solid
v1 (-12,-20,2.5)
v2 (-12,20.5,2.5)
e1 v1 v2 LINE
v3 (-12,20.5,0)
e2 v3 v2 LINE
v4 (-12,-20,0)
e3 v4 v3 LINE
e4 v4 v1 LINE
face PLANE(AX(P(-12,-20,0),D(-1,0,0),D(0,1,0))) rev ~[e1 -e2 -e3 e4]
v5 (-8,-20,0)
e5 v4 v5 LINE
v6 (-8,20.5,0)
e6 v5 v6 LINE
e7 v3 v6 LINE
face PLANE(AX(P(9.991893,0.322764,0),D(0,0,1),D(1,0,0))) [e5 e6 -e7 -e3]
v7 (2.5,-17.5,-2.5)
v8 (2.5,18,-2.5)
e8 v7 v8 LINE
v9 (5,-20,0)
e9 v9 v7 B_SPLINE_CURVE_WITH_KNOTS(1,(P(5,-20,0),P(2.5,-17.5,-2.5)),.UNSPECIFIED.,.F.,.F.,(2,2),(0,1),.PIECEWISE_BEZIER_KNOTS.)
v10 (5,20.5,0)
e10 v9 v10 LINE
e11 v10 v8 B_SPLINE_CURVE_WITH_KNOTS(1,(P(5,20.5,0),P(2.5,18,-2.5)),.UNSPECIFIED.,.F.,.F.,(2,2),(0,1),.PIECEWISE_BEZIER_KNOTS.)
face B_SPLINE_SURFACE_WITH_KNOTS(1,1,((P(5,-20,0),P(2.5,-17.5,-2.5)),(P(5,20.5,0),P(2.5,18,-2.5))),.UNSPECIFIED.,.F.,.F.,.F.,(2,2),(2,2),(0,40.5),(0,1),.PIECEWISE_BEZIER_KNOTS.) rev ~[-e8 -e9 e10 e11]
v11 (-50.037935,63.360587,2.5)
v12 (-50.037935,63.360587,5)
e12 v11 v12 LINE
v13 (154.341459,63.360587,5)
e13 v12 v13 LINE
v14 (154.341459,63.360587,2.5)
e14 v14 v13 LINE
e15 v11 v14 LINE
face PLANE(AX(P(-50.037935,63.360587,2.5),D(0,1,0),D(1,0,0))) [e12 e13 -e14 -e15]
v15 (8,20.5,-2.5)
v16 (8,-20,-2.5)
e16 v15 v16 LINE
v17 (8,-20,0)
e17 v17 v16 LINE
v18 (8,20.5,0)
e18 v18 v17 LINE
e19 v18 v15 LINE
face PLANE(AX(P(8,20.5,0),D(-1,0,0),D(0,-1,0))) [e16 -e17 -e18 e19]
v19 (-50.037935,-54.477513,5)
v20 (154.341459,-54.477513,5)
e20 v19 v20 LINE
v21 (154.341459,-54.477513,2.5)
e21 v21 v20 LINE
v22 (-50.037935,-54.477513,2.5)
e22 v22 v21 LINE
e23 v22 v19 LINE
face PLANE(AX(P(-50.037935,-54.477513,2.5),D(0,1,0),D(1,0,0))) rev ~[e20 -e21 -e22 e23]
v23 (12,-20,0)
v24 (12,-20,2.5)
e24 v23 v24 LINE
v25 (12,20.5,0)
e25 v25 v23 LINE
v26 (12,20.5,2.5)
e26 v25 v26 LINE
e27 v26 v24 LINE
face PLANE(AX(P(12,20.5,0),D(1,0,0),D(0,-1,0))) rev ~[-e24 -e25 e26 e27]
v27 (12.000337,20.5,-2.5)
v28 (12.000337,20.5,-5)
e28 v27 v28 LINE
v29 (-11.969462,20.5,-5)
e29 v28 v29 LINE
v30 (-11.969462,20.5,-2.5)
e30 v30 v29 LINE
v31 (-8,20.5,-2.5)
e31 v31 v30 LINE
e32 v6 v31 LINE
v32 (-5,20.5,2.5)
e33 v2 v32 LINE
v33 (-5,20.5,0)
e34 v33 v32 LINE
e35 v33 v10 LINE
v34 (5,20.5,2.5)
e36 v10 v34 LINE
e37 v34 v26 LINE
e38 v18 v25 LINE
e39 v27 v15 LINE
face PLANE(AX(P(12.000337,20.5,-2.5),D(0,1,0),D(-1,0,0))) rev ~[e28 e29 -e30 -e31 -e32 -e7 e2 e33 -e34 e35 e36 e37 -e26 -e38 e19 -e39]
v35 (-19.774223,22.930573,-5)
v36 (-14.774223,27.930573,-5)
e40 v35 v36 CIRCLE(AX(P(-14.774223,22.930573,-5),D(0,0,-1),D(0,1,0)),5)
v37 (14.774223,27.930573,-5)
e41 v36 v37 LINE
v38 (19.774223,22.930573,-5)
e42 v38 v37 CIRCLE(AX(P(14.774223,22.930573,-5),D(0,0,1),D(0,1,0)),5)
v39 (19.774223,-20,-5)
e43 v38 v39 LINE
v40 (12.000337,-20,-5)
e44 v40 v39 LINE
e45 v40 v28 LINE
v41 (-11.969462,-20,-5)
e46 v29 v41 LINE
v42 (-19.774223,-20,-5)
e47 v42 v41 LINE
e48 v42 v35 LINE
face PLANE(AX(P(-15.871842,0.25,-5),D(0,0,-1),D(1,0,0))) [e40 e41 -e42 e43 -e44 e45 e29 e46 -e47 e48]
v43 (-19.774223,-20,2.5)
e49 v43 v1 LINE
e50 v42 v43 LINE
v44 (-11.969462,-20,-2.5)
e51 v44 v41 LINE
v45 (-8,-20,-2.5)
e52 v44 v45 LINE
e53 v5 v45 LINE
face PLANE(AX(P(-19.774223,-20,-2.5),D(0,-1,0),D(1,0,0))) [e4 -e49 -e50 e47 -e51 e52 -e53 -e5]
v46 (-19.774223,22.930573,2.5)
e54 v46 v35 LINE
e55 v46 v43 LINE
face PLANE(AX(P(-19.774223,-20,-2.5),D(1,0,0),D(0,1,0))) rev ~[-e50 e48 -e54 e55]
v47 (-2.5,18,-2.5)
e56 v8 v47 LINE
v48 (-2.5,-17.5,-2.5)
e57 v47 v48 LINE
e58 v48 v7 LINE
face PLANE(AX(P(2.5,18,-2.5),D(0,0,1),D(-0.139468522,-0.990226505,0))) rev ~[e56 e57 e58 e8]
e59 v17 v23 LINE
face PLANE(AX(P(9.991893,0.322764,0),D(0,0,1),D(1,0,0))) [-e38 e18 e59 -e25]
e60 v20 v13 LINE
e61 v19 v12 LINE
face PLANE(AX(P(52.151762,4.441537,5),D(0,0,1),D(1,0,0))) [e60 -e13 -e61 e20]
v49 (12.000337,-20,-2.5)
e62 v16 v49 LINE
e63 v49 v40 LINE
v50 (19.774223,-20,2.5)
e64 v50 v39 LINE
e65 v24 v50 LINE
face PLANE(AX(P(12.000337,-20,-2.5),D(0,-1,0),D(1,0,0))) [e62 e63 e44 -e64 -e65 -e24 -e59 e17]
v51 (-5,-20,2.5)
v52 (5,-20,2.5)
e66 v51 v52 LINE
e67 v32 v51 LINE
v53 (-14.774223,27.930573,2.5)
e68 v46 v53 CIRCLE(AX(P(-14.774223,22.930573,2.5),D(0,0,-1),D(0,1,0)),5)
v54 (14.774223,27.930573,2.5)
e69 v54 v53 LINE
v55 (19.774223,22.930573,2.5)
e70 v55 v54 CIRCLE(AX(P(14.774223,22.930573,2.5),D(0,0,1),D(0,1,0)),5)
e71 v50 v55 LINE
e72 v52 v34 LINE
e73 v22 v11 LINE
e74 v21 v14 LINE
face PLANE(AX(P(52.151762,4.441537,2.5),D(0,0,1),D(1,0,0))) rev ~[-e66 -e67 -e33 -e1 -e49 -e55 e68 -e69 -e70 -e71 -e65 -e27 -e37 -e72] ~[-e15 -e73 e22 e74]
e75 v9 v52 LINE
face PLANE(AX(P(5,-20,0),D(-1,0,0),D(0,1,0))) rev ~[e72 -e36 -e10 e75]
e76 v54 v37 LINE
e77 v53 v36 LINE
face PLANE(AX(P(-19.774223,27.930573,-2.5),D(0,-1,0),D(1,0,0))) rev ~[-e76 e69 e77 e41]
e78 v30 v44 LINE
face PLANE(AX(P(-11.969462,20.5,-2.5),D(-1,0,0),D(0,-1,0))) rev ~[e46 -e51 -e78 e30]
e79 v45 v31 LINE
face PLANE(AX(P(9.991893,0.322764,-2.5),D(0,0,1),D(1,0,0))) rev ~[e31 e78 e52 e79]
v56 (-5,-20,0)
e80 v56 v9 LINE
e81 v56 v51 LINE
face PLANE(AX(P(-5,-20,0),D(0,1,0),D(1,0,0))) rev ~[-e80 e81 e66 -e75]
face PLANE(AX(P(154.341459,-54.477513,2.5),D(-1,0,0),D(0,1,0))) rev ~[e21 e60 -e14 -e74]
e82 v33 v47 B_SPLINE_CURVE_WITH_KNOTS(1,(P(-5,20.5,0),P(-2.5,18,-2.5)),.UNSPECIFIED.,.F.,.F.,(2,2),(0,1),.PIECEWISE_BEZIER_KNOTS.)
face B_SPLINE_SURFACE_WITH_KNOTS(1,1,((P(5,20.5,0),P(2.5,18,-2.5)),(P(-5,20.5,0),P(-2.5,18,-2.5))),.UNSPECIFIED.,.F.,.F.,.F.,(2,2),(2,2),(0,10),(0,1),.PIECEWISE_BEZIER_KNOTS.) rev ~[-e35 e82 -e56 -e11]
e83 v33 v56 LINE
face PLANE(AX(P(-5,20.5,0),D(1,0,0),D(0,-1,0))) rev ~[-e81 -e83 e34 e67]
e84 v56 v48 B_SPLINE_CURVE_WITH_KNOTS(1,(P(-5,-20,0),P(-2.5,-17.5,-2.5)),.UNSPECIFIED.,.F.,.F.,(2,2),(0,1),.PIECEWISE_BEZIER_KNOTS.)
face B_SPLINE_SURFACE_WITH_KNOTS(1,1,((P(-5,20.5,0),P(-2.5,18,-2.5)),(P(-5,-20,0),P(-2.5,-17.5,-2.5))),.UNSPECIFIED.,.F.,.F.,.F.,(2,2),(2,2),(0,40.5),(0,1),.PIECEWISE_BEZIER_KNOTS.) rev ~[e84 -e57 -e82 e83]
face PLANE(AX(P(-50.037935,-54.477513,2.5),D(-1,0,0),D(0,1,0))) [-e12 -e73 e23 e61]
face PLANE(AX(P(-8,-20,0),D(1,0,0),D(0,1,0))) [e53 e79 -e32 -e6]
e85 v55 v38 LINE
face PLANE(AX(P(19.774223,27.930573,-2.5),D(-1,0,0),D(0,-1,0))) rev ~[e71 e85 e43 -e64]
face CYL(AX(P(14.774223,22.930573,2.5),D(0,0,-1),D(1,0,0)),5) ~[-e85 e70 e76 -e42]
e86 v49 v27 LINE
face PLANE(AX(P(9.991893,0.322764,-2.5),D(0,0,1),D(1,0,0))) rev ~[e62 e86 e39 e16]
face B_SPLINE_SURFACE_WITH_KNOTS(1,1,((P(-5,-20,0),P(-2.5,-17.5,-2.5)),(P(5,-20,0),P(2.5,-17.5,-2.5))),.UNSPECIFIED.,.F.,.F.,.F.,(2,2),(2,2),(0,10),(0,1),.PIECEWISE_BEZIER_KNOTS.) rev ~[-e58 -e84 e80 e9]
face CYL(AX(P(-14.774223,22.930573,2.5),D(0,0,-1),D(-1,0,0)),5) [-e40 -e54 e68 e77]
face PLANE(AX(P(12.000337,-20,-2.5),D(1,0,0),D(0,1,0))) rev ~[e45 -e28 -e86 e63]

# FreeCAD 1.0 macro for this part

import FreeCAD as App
import Part
import Sketcher


def edges_at(feature, points):
    """Names of the edges that pass closest to the given points."""
    edges = feature.Shape.Edges
    near = lambda p: min(range(len(edges)), key=lambda i: edges[i].distToShape(Part.Vertex(*p))[0])
    return sorted({f"Edge{near(p) + 1}" for p in points})

doc = App.newDocument("Part")
params = doc.addObject("Spreadsheet::Sheet", "Params")
for row, (alias, value) in enumerate([
    ("sketch1_width", "7 mm"),
    ("sketch1_width2", "10 mm"),
    ("sketch1_height", "40.5 mm"),
    ("pad1_length", "2.5 mm"),
    ("sketch2_width", "16 mm"),
    ("sketch2_height", "40.5 mm"),
    ("pad2_length", "2.5 mm"),
    ("sketch3_width", "10 mm"),
    ("sketch3_height", "40.5 mm"),
    ("pad3_length", "2.5 mm"),
    ("pad3_taper", "-45 deg"),
    ("sketch4_height", "40.5 mm"),
    ("pad4_length", "2.5 mm"),
    ("fillet_radius", "5 mm"),
    ("pad5_length", "2.5 mm"),
], start=1):
    params.set(f"A{row}", alias)
    params.set(f"B{row}", "=" + value)
    params.setAlias(f"B{row}", alias)

body = doc.addObject("PartDesign::Body", "Body")

# Sketch on XY plane
sketch1 = body.newObject("Sketcher::SketchObject", "Sketch")
sketch1.AttachmentSupport = (doc.getObject("XY_Plane"), [""])
sketch1.MapMode = "FlatFace"
sketch1.addGeometry(Part.LineSegment(App.Vector(-12, 20, 0), App.Vector(-5, 20, 0)), False)
sketch1.addGeometry(Part.LineSegment(App.Vector(-5, 20, 0), App.Vector(-5, -20, 0)), False)
sketch1.addGeometry(Part.LineSegment(App.Vector(-5, -20, 0), App.Vector(5, -20, 0)), False)
sketch1.addGeometry(Part.LineSegment(App.Vector(5, -20, 0), App.Vector(5, 20, 0)), False)
sketch1.addGeometry(Part.LineSegment(App.Vector(5, 20, 0), App.Vector(12, 20, 0)), False)
sketch1.addGeometry(Part.LineSegment(App.Vector(12, 20, 0), App.Vector(12, -20, 0)), False)
sketch1.addGeometry(Part.LineSegment(App.Vector(12, -20, 0), App.Vector(20, -20, 0)), False)
sketch1.addGeometry(Part.LineSegment(App.Vector(20, -20, 0), App.Vector(20, 28, 0)), False)
sketch1.addGeometry(Part.LineSegment(App.Vector(20, 28, 0), App.Vector(-20, 28, 0)), False)
sketch1.addGeometry(Part.LineSegment(App.Vector(-20, 28, 0), App.Vector(-20, -20, 0)), False)
sketch1.addGeometry(Part.LineSegment(App.Vector(-20, -20, 0), App.Vector(-12, -20, 0)), False)
sketch1.addGeometry(Part.LineSegment(App.Vector(-12, -20, 0), App.Vector(-12, 20, 0)), False)
sketch1.addConstraint(Sketcher.Constraint("Coincident", 0, 2, 1, 1))
sketch1.addConstraint(Sketcher.Constraint("Coincident", 1, 2, 2, 1))
sketch1.addConstraint(Sketcher.Constraint("Coincident", 2, 2, 3, 1))
sketch1.addConstraint(Sketcher.Constraint("Coincident", 3, 2, 4, 1))
sketch1.addConstraint(Sketcher.Constraint("Coincident", 4, 2, 5, 1))
sketch1.addConstraint(Sketcher.Constraint("Coincident", 5, 2, 6, 1))
sketch1.addConstraint(Sketcher.Constraint("Coincident", 6, 2, 7, 1))
sketch1.addConstraint(Sketcher.Constraint("Coincident", 7, 2, 8, 1))
sketch1.addConstraint(Sketcher.Constraint("Coincident", 8, 2, 9, 1))
sketch1.addConstraint(Sketcher.Constraint("Coincident", 9, 2, 10, 1))
sketch1.addConstraint(Sketcher.Constraint("Coincident", 10, 2, 11, 1))
sketch1.addConstraint(Sketcher.Constraint("Coincident", 11, 2, 0, 1))
sketch1.addConstraint(Sketcher.Constraint("Horizontal", 0))
sketch1.addConstraint(Sketcher.Constraint("Vertical", 1))
sketch1.addConstraint(Sketcher.Constraint("Horizontal", 2))
sketch1.addConstraint(Sketcher.Constraint("Vertical", 3))
sketch1.addConstraint(Sketcher.Constraint("Horizontal", 4))
sketch1.addConstraint(Sketcher.Constraint("Vertical", 5))
sketch1.addConstraint(Sketcher.Constraint("Horizontal", 6))
sketch1.addConstraint(Sketcher.Constraint("Vertical", 7))
sketch1.addConstraint(Sketcher.Constraint("Horizontal", 8))
sketch1.addConstraint(Sketcher.Constraint("Vertical", 9))
sketch1.addConstraint(Sketcher.Constraint("Horizontal", 10))
sketch1.addConstraint(Sketcher.Constraint("Vertical", 11))
sketch1.addConstraint(Sketcher.Constraint("Symmetric", 0, 2, 3, 2, -2))
sketch1.addConstraint(Sketcher.Constraint("Symmetric", 6, 2, 9, 2, -2))
sketch1.addConstraint(Sketcher.Constraint("Horizontal", 2, 2, 5, 2))
sketch1.addConstraint(Sketcher.Constraint("Equal", 0, 4))
sketch1.addConstraint(Sketcher.Constraint("DistanceX", 0, 1, 0, 2, 7.0))
sketch1.addConstraint(Sketcher.Constraint("DistanceX", 2, 1, 2, 2, 10.0))
sketch1.addConstraint(Sketcher.Constraint("DistanceY", 1, 2, 1, 1, 40.5))
sketch1.addConstraint(Sketcher.Constraint("DistanceY", 1, 2, -1, 1, 20.0))
sketch1.addConstraint(Sketcher.Constraint("DistanceX", 6, 1, 6, 2, 7.774223))
sketch1.addConstraint(Sketcher.Constraint("DistanceY", 7, 1, 7, 2, 47.930573))
sketch1.setExpression("Constraints[28]", "Params.sketch1_width")
sketch1.setExpression("Constraints[29]", "Params.sketch1_width2")
sketch1.setExpression("Constraints[30]", "Params.sketch1_height")
pad1 = body.newObject("PartDesign::Pad", "Pad")
pad1.Profile = sketch1
pad1.setExpression("Length", "Params.pad1_length")

# Sketch on XY plane
sketch2 = body.newObject("Sketcher::SketchObject", "Sketch001")
sketch2.AttachmentSupport = (doc.getObject("XY_Plane"), [""])
sketch2.MapMode = "FlatFace"
sketch2.addGeometry(Part.LineSegment(App.Vector(8, 20, 0), App.Vector(8, -20, 0)), False)
sketch2.addGeometry(Part.LineSegment(App.Vector(8, -20, 0), App.Vector(20, -20, 0)), False)
sketch2.addGeometry(Part.LineSegment(App.Vector(20, -20, 0), App.Vector(20, 28, 0)), False)
sketch2.addGeometry(Part.LineSegment(App.Vector(20, 28, 0), App.Vector(-20, 28, 0)), False)
sketch2.addGeometry(Part.LineSegment(App.Vector(-20, 28, 0), App.Vector(-20, -20, 0)), False)
sketch2.addGeometry(Part.LineSegment(App.Vector(-20, -20, 0), App.Vector(-8, -20, 0)), False)
sketch2.addGeometry(Part.LineSegment(App.Vector(-8, -20, 0), App.Vector(-8, 20, 0)), False)
sketch2.addGeometry(Part.LineSegment(App.Vector(-8, 20, 0), App.Vector(8, 20, 0)), False)
sketch2.addConstraint(Sketcher.Constraint("Coincident", 0, 2, 1, 1))
sketch2.addConstraint(Sketcher.Constraint("Coincident", 1, 2, 2, 1))
sketch2.addConstraint(Sketcher.Constraint("Coincident", 2, 2, 3, 1))
sketch2.addConstraint(Sketcher.Constraint("Coincident", 3, 2, 4, 1))
sketch2.addConstraint(Sketcher.Constraint("Coincident", 4, 2, 5, 1))
sketch2.addConstraint(Sketcher.Constraint("Coincident", 5, 2, 6, 1))
sketch2.addConstraint(Sketcher.Constraint("Coincident", 6, 2, 7, 1))
sketch2.addConstraint(Sketcher.Constraint("Coincident", 7, 2, 0, 1))
sketch2.addConstraint(Sketcher.Constraint("Vertical", 0))
sketch2.addConstraint(Sketcher.Constraint("Horizontal", 1))
sketch2.addConstraint(Sketcher.Constraint("Vertical", 2))
sketch2.addConstraint(Sketcher.Constraint("Horizontal", 3))
sketch2.addConstraint(Sketcher.Constraint("Vertical", 4))
sketch2.addConstraint(Sketcher.Constraint("Horizontal", 5))
sketch2.addConstraint(Sketcher.Constraint("Vertical", 6))
sketch2.addConstraint(Sketcher.Constraint("Horizontal", 7))
sketch2.addConstraint(Sketcher.Constraint("Symmetric", 1, 2, 4, 2, -2))
sketch2.addConstraint(Sketcher.Constraint("Equal", 1, 5))
sketch2.addConstraint(Sketcher.Constraint("DistanceX", 7, 1, 7, 2, 16.0))
sketch2.addConstraint(Sketcher.Constraint("DistanceY", 0, 2, 0, 1, 40.5))
sketch2.addConstraint(Sketcher.Constraint("DistanceY", 0, 2, -1, 1, 20.0))
sketch2.addConstraint(Sketcher.Constraint("DistanceX", 1, 1, 1, 2, 11.774223))
sketch2.addConstraint(Sketcher.Constraint("DistanceY", 2, 1, 2, 2, 47.930573))
sketch2.setExpression("Constraints[18]", "Params.sketch2_width")
sketch2.setExpression("Constraints[19]", "Params.sketch2_height")
pad2 = body.newObject("PartDesign::Pad", "Pad001")
pad2.Profile = sketch2
pad2.setExpression("Length", "Params.pad2_length")
pad2.Reversed = True

# Sketch on XY plane
sketch3 = body.newObject("Sketcher::SketchObject", "Sketch002")
sketch3.AttachmentSupport = (doc.getObject("XY_Plane"), [""])
sketch3.MapMode = "FlatFace"
sketch3.addGeometry(Part.LineSegment(App.Vector(5, 20, 0), App.Vector(-5, 20, 0)), False)
sketch3.addGeometry(Part.LineSegment(App.Vector(-5, 20, 0), App.Vector(-5, -20, 0)), False)
sketch3.addGeometry(Part.LineSegment(App.Vector(-5, -20, 0), App.Vector(5, -20, 0)), False)
sketch3.addGeometry(Part.LineSegment(App.Vector(5, -20, 0), App.Vector(5, 20, 0)), False)
sketch3.addConstraint(Sketcher.Constraint("Coincident", 0, 2, 1, 1))
sketch3.addConstraint(Sketcher.Constraint("Coincident", 1, 2, 2, 1))
sketch3.addConstraint(Sketcher.Constraint("Coincident", 2, 2, 3, 1))
sketch3.addConstraint(Sketcher.Constraint("Coincident", 3, 2, 0, 1))
sketch3.addConstraint(Sketcher.Constraint("Horizontal", 0))
sketch3.addConstraint(Sketcher.Constraint("Vertical", 1))
sketch3.addConstraint(Sketcher.Constraint("Horizontal", 2))
sketch3.addConstraint(Sketcher.Constraint("Vertical", 3))
sketch3.addConstraint(Sketcher.Constraint("DistanceX", 0, 2, 0, 1, 10.0))
sketch3.addConstraint(Sketcher.Constraint("DistanceY", 1, 2, 1, 1, 40.5))
sketch3.addConstraint(Sketcher.Constraint("DistanceX", 0, 2, -1, 1, 5.0))
sketch3.addConstraint(Sketcher.Constraint("DistanceY", 1, 2, -1, 1, 20.0))
sketch3.setExpression("Constraints[8]", "Params.sketch3_width")
sketch3.setExpression("Constraints[9]", "Params.sketch3_height")
pad3 = body.newObject("PartDesign::Pad", "Pad002")
pad3.Profile = sketch3
pad3.setExpression("Length", "Params.pad3_length")
pad3.Reversed = True
pad3.setExpression("TaperAngle", "Params.pad3_taper")

# Sketch on XY plane
sketch4 = body.newObject("Sketcher::SketchObject", "Sketch003")
sketch4.AttachmentSupport = (doc.getObject("XY_Plane"), [""])
sketch4.MapMode = "FlatFace"
sketch4.AttachmentOffset = App.Placement(App.Vector(0, 0, -2.5), App.Rotation())
sketch4.addGeometry(Part.LineSegment(App.Vector(-20, -20, 0), App.Vector(-20, 28, 0)), False)
sketch4.addGeometry(Part.LineSegment(App.Vector(-20, 28, 0), App.Vector(20, 28, 0)), False)
sketch4.addGeometry(Part.LineSegment(App.Vector(20, 28, 0), App.Vector(20, -20, 0)), False)
sketch4.addGeometry(Part.LineSegment(App.Vector(20, -20, 0), App.Vector(12, -20, 0)), False)
sketch4.addGeometry(Part.LineSegment(App.Vector(12, -20, 0), App.Vector(12, 20, 0)), False)
sketch4.addGeometry(Part.LineSegment(App.Vector(12, 20, 0), App.Vector(-12, 20, 0)), False)
sketch4.addGeometry(Part.LineSegment(App.Vector(-12, 20, 0), App.Vector(-12, -20, 0)), False)
sketch4.addGeometry(Part.LineSegment(App.Vector(-12, -20, 0), App.Vector(-20, -20, 0)), False)
sketch4.addConstraint(Sketcher.Constraint("Coincident", 0, 2, 1, 1))
sketch4.addConstraint(Sketcher.Constraint("Coincident", 1, 2, 2, 1))
sketch4.addConstraint(Sketcher.Constraint("Coincident", 2, 2, 3, 1))
sketch4.addConstraint(Sketcher.Constraint("Coincident", 3, 2, 4, 1))
sketch4.addConstraint(Sketcher.Constraint("Coincident", 4, 2, 5, 1))
sketch4.addConstraint(Sketcher.Constraint("Coincident", 5, 2, 6, 1))
sketch4.addConstraint(Sketcher.Constraint("Coincident", 6, 2, 7, 1))
sketch4.addConstraint(Sketcher.Constraint("Coincident", 7, 2, 0, 1))
sketch4.addConstraint(Sketcher.Constraint("Vertical", 0))
sketch4.addConstraint(Sketcher.Constraint("Horizontal", 1))
sketch4.addConstraint(Sketcher.Constraint("Vertical", 2))
sketch4.addConstraint(Sketcher.Constraint("Horizontal", 3))
sketch4.addConstraint(Sketcher.Constraint("Vertical", 4))
sketch4.addConstraint(Sketcher.Constraint("Horizontal", 5))
sketch4.addConstraint(Sketcher.Constraint("Vertical", 6))
sketch4.addConstraint(Sketcher.Constraint("Horizontal", 7))
sketch4.addConstraint(Sketcher.Constraint("Symmetric", 2, 2, 7, 2, -2))
sketch4.addConstraint(Sketcher.Constraint("DistanceY", 4, 1, 4, 2, 40.5))
sketch4.addConstraint(Sketcher.Constraint("DistanceY", 2, 2, -1, 1, 20.0))
sketch4.addConstraint(Sketcher.Constraint("DistanceX", 5, 2, 5, 1, 23.969799))
sketch4.addConstraint(Sketcher.Constraint("DistanceX", 7, 2, 7, 1, 7.804761))
sketch4.addConstraint(Sketcher.Constraint("DistanceX", 1, 1, 1, 2, 39.548445))
sketch4.addConstraint(Sketcher.Constraint("DistanceY", 0, 1, 0, 2, 47.930573))
sketch4.setExpression("Constraints[17]", "Params.sketch4_height")
pad4 = body.newObject("PartDesign::Pad", "Pad003")
pad4.Profile = sketch4
pad4.setExpression("Length", "Params.pad4_length")
pad4.Reversed = True
doc.recompute()

fillet = body.newObject("PartDesign::Fillet", "Fillet")
fillet.Base = (pad4, edges_at(pad4, [(-19.774, 27.931, -1.25), (19.774, 27.931, -1.25)]))
fillet.setExpression("Radius", "Params.fillet_radius")

# Sketch on XY plane
sketch5 = body.newObject("Sketcher::SketchObject", "Sketch004")
sketch5.AttachmentSupport = (doc.getObject("XY_Plane"), [""])
sketch5.MapMode = "FlatFace"
sketch5.AttachmentOffset = App.Placement(App.Vector(0, 0, 2.5), App.Rotation())
sketch5.addGeometry(Part.LineSegment(App.Vector(-50, 63, 0), App.Vector(-50, -54, 0)), False)
sketch5.addGeometry(Part.LineSegment(App.Vector(-50, -54, 0), App.Vector(154, -54, 0)), False)
sketch5.addGeometry(Part.LineSegment(App.Vector(154, -54, 0), App.Vector(154, 63, 0)), False)
sketch5.addGeometry(Part.LineSegment(App.Vector(154, 63, 0), App.Vector(-50, 63, 0)), False)
sketch5.addConstraint(Sketcher.Constraint("Coincident", 0, 2, 1, 1))
sketch5.addConstraint(Sketcher.Constraint("Coincident", 1, 2, 2, 1))
sketch5.addConstraint(Sketcher.Constraint("Coincident", 2, 2, 3, 1))
sketch5.addConstraint(Sketcher.Constraint("Coincident", 3, 2, 0, 1))
sketch5.addConstraint(Sketcher.Constraint("Vertical", 0))
sketch5.addConstraint(Sketcher.Constraint("Horizontal", 1))
sketch5.addConstraint(Sketcher.Constraint("Vertical", 2))
sketch5.addConstraint(Sketcher.Constraint("Horizontal", 3))
sketch5.addConstraint(Sketcher.Constraint("DistanceY", 0, 2, 0, 1, 117.8381))
sketch5.addConstraint(Sketcher.Constraint("DistanceX", 1, 1, 1, 2, 204.379395))
sketch5.addConstraint(Sketcher.Constraint("DistanceX", -1, 1, 1, 2, 154.341459))
sketch5.addConstraint(Sketcher.Constraint("DistanceY", 0, 2, -1, 1, 54.477513))
pad5 = body.newObject("PartDesign::Pad", "Pad004")
pad5.Profile = sketch5
pad5.setExpression("Length", "Params.pad5_length")

doc.recompute()
